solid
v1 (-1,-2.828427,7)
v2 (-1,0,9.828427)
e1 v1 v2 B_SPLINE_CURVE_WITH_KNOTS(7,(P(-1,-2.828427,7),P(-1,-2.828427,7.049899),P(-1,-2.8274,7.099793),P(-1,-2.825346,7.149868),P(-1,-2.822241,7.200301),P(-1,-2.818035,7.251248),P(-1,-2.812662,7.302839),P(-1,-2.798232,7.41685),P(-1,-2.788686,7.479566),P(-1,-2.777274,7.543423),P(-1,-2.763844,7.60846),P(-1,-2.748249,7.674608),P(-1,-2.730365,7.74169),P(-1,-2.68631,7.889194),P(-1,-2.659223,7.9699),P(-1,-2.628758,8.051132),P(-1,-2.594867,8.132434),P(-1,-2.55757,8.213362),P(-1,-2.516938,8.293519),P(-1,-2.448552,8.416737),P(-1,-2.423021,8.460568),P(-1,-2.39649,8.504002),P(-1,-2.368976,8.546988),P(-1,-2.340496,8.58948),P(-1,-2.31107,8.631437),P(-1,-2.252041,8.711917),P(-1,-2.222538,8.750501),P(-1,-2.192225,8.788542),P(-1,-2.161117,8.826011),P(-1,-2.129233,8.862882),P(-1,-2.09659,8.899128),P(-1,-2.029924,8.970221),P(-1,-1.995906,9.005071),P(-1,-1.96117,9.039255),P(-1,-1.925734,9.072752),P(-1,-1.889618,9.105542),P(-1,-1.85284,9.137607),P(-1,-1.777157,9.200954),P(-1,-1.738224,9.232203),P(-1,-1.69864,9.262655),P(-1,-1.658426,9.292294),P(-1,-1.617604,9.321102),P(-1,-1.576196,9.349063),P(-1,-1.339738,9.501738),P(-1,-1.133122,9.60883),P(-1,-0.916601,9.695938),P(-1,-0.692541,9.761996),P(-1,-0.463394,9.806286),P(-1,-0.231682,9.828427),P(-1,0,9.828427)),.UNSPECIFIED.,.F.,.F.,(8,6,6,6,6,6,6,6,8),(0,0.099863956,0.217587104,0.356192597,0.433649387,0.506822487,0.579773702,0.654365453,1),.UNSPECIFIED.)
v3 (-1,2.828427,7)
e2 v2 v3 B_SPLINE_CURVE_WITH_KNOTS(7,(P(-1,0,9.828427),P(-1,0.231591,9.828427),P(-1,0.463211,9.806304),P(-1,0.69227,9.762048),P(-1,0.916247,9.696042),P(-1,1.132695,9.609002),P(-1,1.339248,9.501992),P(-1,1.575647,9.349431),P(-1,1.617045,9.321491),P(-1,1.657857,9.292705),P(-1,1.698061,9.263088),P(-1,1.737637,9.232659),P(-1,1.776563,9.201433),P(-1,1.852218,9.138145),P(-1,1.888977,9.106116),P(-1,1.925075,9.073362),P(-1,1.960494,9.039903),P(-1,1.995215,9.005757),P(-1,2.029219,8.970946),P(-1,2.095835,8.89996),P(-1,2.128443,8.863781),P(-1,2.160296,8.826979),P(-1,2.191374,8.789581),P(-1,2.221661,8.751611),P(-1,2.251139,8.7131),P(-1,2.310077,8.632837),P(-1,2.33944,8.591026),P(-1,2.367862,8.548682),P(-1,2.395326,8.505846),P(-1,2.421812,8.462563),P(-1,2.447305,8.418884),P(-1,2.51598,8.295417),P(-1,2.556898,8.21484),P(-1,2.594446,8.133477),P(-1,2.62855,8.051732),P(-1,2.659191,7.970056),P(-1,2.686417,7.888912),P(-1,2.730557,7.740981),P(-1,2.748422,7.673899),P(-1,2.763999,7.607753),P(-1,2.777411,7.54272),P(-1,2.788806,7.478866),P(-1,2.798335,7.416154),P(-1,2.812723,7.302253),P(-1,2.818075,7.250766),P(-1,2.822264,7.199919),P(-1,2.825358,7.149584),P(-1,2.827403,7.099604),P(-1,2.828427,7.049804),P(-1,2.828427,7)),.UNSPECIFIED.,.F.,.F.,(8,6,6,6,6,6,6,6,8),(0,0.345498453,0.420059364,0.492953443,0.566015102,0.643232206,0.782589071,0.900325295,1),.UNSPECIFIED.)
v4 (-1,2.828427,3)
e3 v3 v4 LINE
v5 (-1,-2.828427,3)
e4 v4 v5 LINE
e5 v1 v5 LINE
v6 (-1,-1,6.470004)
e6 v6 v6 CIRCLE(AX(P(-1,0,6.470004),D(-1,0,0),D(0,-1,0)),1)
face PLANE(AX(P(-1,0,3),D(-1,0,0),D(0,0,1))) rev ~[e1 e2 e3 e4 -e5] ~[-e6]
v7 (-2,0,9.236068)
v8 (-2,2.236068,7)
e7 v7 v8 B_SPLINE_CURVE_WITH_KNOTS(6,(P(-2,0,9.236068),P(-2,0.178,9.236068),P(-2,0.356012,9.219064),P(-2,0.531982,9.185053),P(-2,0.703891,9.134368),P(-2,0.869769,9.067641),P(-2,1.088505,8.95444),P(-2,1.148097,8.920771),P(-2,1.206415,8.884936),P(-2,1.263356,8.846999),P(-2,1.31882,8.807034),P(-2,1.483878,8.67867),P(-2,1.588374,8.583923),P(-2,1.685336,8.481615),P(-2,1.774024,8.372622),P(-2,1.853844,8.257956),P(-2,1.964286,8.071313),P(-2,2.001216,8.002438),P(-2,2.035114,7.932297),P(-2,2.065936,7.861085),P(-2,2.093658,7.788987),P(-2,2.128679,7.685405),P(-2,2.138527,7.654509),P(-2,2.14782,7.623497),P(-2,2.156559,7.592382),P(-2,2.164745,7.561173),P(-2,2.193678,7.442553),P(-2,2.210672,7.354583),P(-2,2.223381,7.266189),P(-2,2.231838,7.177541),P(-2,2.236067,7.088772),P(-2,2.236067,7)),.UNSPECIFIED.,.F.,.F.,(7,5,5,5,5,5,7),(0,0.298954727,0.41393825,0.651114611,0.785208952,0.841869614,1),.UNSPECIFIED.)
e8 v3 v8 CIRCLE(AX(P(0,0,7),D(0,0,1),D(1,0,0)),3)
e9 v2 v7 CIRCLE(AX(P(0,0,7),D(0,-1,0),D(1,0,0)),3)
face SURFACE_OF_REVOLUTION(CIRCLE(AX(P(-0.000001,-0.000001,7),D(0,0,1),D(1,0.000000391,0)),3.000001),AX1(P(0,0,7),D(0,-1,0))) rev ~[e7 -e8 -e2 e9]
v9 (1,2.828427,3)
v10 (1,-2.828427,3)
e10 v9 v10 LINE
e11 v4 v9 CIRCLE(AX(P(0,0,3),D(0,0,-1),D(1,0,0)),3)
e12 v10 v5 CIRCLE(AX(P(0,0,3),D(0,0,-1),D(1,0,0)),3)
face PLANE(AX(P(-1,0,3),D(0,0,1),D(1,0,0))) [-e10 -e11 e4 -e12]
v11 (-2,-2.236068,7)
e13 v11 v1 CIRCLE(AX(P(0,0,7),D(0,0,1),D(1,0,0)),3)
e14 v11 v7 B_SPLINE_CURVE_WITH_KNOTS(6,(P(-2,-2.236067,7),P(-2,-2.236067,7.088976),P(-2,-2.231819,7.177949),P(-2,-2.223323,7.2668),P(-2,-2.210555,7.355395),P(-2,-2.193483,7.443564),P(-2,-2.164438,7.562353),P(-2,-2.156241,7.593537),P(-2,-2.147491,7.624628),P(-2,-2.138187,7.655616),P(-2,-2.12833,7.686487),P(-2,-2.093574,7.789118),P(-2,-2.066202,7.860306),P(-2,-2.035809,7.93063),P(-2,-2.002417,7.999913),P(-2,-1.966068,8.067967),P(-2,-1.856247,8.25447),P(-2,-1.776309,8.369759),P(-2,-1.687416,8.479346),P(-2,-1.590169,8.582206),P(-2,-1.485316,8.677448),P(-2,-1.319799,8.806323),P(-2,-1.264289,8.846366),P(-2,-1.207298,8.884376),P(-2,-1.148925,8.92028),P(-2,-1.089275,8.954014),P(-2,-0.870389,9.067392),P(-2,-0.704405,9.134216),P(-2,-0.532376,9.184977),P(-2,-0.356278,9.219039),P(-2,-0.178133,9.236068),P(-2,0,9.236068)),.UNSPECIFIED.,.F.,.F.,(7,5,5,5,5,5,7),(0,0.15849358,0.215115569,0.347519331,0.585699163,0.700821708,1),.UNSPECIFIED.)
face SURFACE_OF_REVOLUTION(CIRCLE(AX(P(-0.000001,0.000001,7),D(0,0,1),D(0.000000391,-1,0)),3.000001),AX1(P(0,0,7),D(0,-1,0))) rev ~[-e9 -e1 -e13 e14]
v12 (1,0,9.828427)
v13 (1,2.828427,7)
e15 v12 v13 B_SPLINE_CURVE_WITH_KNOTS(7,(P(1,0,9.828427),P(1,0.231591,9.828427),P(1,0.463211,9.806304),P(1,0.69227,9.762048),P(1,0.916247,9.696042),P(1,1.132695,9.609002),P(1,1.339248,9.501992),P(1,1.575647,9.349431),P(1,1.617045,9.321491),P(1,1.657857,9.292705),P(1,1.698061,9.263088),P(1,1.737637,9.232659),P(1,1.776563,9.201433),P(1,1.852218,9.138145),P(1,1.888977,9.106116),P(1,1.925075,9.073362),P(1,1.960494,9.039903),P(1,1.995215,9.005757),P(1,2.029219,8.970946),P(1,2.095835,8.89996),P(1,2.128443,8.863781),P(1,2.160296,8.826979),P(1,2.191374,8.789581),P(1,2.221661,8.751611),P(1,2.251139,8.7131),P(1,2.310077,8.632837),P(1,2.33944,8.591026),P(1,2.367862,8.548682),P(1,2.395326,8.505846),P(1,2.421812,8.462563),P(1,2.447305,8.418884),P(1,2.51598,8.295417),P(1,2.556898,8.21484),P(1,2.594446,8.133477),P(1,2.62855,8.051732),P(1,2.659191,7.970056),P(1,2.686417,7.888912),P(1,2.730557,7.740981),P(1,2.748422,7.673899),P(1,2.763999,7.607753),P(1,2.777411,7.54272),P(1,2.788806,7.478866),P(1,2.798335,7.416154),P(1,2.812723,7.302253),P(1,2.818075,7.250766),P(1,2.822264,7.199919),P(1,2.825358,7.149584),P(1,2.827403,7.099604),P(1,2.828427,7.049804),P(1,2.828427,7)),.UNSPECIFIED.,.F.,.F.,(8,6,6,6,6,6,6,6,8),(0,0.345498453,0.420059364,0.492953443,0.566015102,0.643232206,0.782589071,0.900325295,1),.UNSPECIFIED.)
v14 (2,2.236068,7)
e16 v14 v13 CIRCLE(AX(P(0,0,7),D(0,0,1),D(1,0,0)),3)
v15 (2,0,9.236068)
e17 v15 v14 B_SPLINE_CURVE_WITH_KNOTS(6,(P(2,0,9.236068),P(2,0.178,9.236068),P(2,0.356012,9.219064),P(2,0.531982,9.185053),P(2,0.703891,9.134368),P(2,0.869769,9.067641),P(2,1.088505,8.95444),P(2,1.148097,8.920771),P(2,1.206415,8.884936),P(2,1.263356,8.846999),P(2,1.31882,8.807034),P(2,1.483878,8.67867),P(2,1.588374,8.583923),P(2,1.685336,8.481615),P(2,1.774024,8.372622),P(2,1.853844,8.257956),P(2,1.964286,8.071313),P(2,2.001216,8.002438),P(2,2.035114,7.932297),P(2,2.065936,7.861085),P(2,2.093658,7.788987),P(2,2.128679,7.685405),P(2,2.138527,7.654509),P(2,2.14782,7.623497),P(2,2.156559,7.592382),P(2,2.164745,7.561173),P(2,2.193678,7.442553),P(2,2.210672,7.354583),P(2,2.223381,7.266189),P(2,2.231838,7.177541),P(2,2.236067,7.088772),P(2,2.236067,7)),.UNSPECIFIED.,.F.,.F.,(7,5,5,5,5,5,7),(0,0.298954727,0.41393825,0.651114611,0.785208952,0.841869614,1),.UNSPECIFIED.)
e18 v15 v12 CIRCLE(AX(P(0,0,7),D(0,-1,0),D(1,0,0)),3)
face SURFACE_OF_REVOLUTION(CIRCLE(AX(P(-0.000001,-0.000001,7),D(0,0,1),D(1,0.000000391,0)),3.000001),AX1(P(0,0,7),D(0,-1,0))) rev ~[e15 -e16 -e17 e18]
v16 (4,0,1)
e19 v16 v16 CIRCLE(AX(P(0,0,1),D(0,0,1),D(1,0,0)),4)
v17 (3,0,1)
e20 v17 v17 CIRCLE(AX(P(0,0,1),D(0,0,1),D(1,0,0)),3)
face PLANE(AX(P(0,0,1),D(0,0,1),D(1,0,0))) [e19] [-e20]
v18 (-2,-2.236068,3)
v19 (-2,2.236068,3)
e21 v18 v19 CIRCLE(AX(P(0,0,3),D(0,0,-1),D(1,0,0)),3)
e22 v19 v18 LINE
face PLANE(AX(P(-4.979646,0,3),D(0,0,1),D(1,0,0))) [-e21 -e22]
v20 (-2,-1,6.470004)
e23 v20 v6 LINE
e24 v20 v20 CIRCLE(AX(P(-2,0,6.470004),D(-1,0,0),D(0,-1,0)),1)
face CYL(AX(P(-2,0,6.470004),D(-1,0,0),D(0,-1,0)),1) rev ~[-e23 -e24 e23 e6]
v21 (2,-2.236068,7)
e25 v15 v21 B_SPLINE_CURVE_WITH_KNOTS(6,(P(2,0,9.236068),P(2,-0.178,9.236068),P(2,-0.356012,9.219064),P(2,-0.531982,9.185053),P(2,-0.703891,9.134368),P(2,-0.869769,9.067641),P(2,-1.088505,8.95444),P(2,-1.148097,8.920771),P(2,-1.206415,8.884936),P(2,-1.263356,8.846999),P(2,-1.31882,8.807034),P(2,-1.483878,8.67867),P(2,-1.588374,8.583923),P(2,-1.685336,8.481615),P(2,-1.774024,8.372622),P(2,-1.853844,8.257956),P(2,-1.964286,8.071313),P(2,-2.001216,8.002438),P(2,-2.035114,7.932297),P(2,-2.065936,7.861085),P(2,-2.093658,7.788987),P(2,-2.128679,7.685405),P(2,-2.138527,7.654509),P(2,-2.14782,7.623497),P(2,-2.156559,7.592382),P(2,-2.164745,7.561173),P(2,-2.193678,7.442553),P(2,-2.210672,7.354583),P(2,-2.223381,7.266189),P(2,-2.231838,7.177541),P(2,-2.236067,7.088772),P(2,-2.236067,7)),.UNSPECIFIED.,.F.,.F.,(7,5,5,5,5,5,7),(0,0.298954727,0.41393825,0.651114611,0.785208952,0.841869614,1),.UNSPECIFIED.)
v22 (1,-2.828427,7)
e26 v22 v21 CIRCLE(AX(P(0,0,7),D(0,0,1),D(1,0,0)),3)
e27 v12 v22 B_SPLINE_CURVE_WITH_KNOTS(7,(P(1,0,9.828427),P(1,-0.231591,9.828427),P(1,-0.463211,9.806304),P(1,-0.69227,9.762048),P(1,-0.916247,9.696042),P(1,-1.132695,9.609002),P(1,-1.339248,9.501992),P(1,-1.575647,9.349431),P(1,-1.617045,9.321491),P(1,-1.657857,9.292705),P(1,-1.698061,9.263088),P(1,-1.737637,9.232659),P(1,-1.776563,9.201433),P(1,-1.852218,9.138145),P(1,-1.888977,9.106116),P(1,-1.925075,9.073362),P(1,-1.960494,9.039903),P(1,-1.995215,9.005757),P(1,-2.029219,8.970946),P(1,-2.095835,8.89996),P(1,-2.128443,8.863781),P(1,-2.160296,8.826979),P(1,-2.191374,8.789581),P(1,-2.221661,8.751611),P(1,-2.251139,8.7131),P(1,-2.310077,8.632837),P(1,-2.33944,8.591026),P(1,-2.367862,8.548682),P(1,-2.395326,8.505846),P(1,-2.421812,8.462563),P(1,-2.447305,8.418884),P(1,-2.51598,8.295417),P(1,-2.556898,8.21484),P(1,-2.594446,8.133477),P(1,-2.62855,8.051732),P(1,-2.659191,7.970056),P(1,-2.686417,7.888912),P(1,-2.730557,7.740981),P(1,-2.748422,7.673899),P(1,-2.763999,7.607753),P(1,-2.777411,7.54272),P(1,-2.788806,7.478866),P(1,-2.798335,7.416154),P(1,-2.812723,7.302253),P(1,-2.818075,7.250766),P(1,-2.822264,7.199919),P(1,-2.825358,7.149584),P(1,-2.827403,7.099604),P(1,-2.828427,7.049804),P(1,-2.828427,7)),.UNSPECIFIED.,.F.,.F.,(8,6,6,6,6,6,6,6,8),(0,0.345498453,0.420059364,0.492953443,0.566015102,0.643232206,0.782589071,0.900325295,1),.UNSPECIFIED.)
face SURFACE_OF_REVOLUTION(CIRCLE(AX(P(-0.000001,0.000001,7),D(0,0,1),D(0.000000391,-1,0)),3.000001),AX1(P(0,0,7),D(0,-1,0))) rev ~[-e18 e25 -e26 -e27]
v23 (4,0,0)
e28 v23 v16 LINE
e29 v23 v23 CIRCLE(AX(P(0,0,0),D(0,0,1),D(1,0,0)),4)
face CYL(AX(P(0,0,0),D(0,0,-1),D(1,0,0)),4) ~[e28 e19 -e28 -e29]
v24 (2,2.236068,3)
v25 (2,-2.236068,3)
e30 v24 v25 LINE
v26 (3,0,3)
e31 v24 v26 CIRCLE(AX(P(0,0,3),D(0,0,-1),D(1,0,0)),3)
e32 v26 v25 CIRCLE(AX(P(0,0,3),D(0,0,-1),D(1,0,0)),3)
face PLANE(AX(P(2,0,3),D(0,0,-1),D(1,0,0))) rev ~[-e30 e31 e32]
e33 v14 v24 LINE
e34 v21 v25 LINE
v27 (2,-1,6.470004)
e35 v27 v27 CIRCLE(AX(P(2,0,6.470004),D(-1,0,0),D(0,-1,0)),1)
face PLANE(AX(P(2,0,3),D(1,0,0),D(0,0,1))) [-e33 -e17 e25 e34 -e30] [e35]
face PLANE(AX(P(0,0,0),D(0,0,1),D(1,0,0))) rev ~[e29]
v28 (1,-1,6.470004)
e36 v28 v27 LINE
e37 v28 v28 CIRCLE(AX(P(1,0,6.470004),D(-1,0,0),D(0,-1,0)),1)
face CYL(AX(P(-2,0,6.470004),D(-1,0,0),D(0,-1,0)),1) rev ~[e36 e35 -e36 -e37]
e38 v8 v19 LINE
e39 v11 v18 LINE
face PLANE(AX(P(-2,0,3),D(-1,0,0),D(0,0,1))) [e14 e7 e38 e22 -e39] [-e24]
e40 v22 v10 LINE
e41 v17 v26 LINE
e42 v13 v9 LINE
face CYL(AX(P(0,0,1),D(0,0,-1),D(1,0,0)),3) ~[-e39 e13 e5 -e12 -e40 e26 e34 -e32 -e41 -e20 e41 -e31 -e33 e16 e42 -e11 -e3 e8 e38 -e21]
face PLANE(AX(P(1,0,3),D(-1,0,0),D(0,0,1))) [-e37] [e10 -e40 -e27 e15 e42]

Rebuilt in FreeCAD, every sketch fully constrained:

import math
import FreeCAD as App
import Part
import Sketcher

V = App.Vector

doc = App.newDocument("Part")
body = doc.addObject("PartDesign::Body", "Body")

sketch1 = body.newObject("Sketcher::SketchObject", "Sketch")
sketch1.AttachmentSupport = (doc.getObject("XY_Plane"), [""])
sketch1.MapMode = "FlatFace"
sketch1.addGeometry(Part.Circle(V(0, 0, 0), V(0, 0, 1), 4), False)
sketch1.addConstraint([
    Sketcher.Constraint("Coincident", 0, 3, -1, 1),
    Sketcher.Constraint("Diameter", 0, 8.0),
])
pad1 = body.newObject("PartDesign::Pad", "Pad")
pad1.Profile = sketch1
pad1.Length = 1

sketch2 = body.newObject("Sketcher::SketchObject", "Sketch001")
sketch2.AttachmentSupport = (doc.getObject("XY_Plane"), [""])
sketch2.MapMode = "FlatFace"
sketch2.AttachmentOffset = App.Placement(V(0, 0, 1), App.Rotation())
sketch2.addGeometry(Part.Circle(V(0, 0, 0), V(0, 0, 1), 3), False)
sketch2.addConstraint([
    Sketcher.Constraint("Coincident", 0, 3, -1, 1),
    Sketcher.Constraint("Diameter", 0, 6.0),
])
pad2 = body.newObject("PartDesign::Pad", "Pad001")
pad2.Profile = sketch2
pad2.Length = 6

sketch3 = body.newObject("Sketcher::SketchObject", "Sketch002")
sketch3.AttachmentSupport = (doc.getObject("XY_Plane"), [""])
sketch3.MapMode = "FlatFace"
sketch3.AttachmentOffset = App.Placement(V(0, 0, 7), App.Rotation())
sketch3.addGeometry([
    Part.ArcOfCircle(Part.Circle(V(-0.000001, 0.000001, 0), V(0, 0, 1), 3.000001), math.radians(-89.999978), math.radians(-0.000022)),
    Part.ArcOfCircle(Part.Circle(V(-0.000001, -0.000001, 0), V(0, 0, 1), 3.000001), math.radians(0.000022), math.radians(89.999978)),
    Part.LineSegment(V(0, 3, 0), V(0, -3, 0)),
], False)
sketch3.addConstraint([
    Sketcher.Constraint("Tangent", 0, 2, 1, 1),
    Sketcher.Constraint("Coincident", 1, 2, 2, 1),
    Sketcher.Constraint("Coincident", 2, 2, 0, 1),
    Sketcher.Constraint("Vertical", 2),
    Sketcher.Constraint("Coincident", 0, 3, -1, 1),
    Sketcher.Constraint("Equal", 0, 1),
    Sketcher.Constraint("PointOnObject", 0, 2, -1),
    Sketcher.Constraint("PointOnObject", 1, 2, -2),
    Sketcher.Constraint("Radius", 0, 3.000001),
])
revolution = body.newObject("PartDesign::Revolution", "Revolution")
revolution.Profile = sketch3
revolution.ReferenceAxis = (sketch3, ["V_Axis"])
revolution.Angle = 360

sketch4 = body.newObject("Sketcher::SketchObject", "Sketch003")
sketch4.AttachmentSupport = (doc.getObject("XZ_Plane"), [""])
sketch4.MapMode = "FlatFace"
sketch4.addGeometry([
    Part.LineSegment(V(-1, 11.928134, 0), V(-1, 3, 0)),
    Part.LineSegment(V(-1, 3, 0), V(1, 3, 0)),
    Part.LineSegment(V(1, 3, 0), V(1, 11.928134, 0)),
    Part.LineSegment(V(1, 11.928134, 0), V(-1, 11.928134, 0)),
    Part.LineSegment(V(-4.979646, 11.928134, 0), V(-4.979646, 3, 0)),
    Part.LineSegment(V(-4.979646, 3, 0), V(-2, 3, 0)),
    Part.LineSegment(V(-2, 3, 0), V(-2, 11.928134, 0)),
    Part.LineSegment(V(-2, 11.928134, 0), V(-4.979646, 11.928134, 0)),
    Part.LineSegment(V(2, 11.928134, 0), V(2, 3, 0)),
    Part.LineSegment(V(2, 3, 0), V(4.979646, 3, 0)),
    Part.LineSegment(V(4.979646, 3, 0), V(4.979646, 11.928134, 0)),
    Part.LineSegment(V(4.979646, 11.928134, 0), V(2, 11.928134, 0)),
], False)
sketch4.addConstraint([
    Sketcher.Constraint("Coincident", 0, 2, 1, 1),
    Sketcher.Constraint("Coincident", 1, 2, 2, 1),
    Sketcher.Constraint("Coincident", 2, 2, 3, 1),
    Sketcher.Constraint("Coincident", 3, 2, 0, 1),
    Sketcher.Constraint("Coincident", 4, 2, 5, 1),
    Sketcher.Constraint("Coincident", 5, 2, 6, 1),
    Sketcher.Constraint("Coincident", 6, 2, 7, 1),
    Sketcher.Constraint("Coincident", 7, 2, 4, 1),
    Sketcher.Constraint("Coincident", 8, 2, 9, 1),
    Sketcher.Constraint("Coincident", 9, 2, 10, 1),
    Sketcher.Constraint("Coincident", 10, 2, 11, 1),
    Sketcher.Constraint("Coincident", 11, 2, 8, 1),
    Sketcher.Constraint("Vertical", 0),
    Sketcher.Constraint("Horizontal", 1),
    Sketcher.Constraint("Vertical", 2),
    Sketcher.Constraint("Horizontal", 3),
    Sketcher.Constraint("Vertical", 4),
    Sketcher.Constraint("Horizontal", 5),
    Sketcher.Constraint("Vertical", 6),
    Sketcher.Constraint("Horizontal", 7),
    Sketcher.Constraint("Vertical", 8),
    Sketcher.Constraint("Horizontal", 9),
    Sketcher.Constraint("Vertical", 10),
    Sketcher.Constraint("Horizontal", 11),
    Sketcher.Constraint("Symmetric", 5, 2, 8, 2, -2),
    Sketcher.Constraint("Symmetric", 7, 2, 10, 2, -2),
    Sketcher.Constraint("Horizontal", 1, 2, 4, 2),
    Sketcher.Constraint("Horizontal", 3, 2, 6, 2),
    Sketcher.Constraint("DistanceX", 1, 1, 1, 2, 2.0),
    Sketcher.Constraint("DistanceX", 0, 2, -1, 1, 1.0),
    Sketcher.Constraint("DistanceY", -1, 1, 0, 2, 3.0),
    Sketcher.Constraint("DistanceX", 5, 2, -1, 1, 2.0),
    Sketcher.Constraint("DistanceX", 5, 1, 5, 2, 2.979646),
    Sketcher.Constraint("DistanceY", 0, 2, 0, 1, 8.928134),
])
pocket1 = body.newObject("PartDesign::Pocket", "Pocket")
pocket1.Profile = sketch4
pocket1.Length = 25
pocket1.Midplane = True

sketch5 = body.newObject("Sketcher::SketchObject", "Sketch004")
sketch5.AttachmentSupport = (doc.getObject("YZ_Plane"), [""])
sketch5.MapMode = "FlatFace"
sketch5.AttachmentOffset = App.Placement(V(0, 0, -2), App.Rotation())
sketch5.addGeometry(Part.Circle(V(0, 6.470004, 0), V(0, 0, 1), 1), False)
sketch5.addConstraint([
    Sketcher.Constraint("PointOnObject", 0, 3, -2),
    Sketcher.Constraint("Diameter", 0, 2.0),
    Sketcher.Constraint("DistanceY", -1, 1, 0, 3, 6.470004),
])
pocket2 = body.newObject("PartDesign::Pocket", "Pocket001")
pocket2.Profile = sketch5
pocket2.Type = "ThroughAll"
pocket2.Reversed = True

doc.recompute()
